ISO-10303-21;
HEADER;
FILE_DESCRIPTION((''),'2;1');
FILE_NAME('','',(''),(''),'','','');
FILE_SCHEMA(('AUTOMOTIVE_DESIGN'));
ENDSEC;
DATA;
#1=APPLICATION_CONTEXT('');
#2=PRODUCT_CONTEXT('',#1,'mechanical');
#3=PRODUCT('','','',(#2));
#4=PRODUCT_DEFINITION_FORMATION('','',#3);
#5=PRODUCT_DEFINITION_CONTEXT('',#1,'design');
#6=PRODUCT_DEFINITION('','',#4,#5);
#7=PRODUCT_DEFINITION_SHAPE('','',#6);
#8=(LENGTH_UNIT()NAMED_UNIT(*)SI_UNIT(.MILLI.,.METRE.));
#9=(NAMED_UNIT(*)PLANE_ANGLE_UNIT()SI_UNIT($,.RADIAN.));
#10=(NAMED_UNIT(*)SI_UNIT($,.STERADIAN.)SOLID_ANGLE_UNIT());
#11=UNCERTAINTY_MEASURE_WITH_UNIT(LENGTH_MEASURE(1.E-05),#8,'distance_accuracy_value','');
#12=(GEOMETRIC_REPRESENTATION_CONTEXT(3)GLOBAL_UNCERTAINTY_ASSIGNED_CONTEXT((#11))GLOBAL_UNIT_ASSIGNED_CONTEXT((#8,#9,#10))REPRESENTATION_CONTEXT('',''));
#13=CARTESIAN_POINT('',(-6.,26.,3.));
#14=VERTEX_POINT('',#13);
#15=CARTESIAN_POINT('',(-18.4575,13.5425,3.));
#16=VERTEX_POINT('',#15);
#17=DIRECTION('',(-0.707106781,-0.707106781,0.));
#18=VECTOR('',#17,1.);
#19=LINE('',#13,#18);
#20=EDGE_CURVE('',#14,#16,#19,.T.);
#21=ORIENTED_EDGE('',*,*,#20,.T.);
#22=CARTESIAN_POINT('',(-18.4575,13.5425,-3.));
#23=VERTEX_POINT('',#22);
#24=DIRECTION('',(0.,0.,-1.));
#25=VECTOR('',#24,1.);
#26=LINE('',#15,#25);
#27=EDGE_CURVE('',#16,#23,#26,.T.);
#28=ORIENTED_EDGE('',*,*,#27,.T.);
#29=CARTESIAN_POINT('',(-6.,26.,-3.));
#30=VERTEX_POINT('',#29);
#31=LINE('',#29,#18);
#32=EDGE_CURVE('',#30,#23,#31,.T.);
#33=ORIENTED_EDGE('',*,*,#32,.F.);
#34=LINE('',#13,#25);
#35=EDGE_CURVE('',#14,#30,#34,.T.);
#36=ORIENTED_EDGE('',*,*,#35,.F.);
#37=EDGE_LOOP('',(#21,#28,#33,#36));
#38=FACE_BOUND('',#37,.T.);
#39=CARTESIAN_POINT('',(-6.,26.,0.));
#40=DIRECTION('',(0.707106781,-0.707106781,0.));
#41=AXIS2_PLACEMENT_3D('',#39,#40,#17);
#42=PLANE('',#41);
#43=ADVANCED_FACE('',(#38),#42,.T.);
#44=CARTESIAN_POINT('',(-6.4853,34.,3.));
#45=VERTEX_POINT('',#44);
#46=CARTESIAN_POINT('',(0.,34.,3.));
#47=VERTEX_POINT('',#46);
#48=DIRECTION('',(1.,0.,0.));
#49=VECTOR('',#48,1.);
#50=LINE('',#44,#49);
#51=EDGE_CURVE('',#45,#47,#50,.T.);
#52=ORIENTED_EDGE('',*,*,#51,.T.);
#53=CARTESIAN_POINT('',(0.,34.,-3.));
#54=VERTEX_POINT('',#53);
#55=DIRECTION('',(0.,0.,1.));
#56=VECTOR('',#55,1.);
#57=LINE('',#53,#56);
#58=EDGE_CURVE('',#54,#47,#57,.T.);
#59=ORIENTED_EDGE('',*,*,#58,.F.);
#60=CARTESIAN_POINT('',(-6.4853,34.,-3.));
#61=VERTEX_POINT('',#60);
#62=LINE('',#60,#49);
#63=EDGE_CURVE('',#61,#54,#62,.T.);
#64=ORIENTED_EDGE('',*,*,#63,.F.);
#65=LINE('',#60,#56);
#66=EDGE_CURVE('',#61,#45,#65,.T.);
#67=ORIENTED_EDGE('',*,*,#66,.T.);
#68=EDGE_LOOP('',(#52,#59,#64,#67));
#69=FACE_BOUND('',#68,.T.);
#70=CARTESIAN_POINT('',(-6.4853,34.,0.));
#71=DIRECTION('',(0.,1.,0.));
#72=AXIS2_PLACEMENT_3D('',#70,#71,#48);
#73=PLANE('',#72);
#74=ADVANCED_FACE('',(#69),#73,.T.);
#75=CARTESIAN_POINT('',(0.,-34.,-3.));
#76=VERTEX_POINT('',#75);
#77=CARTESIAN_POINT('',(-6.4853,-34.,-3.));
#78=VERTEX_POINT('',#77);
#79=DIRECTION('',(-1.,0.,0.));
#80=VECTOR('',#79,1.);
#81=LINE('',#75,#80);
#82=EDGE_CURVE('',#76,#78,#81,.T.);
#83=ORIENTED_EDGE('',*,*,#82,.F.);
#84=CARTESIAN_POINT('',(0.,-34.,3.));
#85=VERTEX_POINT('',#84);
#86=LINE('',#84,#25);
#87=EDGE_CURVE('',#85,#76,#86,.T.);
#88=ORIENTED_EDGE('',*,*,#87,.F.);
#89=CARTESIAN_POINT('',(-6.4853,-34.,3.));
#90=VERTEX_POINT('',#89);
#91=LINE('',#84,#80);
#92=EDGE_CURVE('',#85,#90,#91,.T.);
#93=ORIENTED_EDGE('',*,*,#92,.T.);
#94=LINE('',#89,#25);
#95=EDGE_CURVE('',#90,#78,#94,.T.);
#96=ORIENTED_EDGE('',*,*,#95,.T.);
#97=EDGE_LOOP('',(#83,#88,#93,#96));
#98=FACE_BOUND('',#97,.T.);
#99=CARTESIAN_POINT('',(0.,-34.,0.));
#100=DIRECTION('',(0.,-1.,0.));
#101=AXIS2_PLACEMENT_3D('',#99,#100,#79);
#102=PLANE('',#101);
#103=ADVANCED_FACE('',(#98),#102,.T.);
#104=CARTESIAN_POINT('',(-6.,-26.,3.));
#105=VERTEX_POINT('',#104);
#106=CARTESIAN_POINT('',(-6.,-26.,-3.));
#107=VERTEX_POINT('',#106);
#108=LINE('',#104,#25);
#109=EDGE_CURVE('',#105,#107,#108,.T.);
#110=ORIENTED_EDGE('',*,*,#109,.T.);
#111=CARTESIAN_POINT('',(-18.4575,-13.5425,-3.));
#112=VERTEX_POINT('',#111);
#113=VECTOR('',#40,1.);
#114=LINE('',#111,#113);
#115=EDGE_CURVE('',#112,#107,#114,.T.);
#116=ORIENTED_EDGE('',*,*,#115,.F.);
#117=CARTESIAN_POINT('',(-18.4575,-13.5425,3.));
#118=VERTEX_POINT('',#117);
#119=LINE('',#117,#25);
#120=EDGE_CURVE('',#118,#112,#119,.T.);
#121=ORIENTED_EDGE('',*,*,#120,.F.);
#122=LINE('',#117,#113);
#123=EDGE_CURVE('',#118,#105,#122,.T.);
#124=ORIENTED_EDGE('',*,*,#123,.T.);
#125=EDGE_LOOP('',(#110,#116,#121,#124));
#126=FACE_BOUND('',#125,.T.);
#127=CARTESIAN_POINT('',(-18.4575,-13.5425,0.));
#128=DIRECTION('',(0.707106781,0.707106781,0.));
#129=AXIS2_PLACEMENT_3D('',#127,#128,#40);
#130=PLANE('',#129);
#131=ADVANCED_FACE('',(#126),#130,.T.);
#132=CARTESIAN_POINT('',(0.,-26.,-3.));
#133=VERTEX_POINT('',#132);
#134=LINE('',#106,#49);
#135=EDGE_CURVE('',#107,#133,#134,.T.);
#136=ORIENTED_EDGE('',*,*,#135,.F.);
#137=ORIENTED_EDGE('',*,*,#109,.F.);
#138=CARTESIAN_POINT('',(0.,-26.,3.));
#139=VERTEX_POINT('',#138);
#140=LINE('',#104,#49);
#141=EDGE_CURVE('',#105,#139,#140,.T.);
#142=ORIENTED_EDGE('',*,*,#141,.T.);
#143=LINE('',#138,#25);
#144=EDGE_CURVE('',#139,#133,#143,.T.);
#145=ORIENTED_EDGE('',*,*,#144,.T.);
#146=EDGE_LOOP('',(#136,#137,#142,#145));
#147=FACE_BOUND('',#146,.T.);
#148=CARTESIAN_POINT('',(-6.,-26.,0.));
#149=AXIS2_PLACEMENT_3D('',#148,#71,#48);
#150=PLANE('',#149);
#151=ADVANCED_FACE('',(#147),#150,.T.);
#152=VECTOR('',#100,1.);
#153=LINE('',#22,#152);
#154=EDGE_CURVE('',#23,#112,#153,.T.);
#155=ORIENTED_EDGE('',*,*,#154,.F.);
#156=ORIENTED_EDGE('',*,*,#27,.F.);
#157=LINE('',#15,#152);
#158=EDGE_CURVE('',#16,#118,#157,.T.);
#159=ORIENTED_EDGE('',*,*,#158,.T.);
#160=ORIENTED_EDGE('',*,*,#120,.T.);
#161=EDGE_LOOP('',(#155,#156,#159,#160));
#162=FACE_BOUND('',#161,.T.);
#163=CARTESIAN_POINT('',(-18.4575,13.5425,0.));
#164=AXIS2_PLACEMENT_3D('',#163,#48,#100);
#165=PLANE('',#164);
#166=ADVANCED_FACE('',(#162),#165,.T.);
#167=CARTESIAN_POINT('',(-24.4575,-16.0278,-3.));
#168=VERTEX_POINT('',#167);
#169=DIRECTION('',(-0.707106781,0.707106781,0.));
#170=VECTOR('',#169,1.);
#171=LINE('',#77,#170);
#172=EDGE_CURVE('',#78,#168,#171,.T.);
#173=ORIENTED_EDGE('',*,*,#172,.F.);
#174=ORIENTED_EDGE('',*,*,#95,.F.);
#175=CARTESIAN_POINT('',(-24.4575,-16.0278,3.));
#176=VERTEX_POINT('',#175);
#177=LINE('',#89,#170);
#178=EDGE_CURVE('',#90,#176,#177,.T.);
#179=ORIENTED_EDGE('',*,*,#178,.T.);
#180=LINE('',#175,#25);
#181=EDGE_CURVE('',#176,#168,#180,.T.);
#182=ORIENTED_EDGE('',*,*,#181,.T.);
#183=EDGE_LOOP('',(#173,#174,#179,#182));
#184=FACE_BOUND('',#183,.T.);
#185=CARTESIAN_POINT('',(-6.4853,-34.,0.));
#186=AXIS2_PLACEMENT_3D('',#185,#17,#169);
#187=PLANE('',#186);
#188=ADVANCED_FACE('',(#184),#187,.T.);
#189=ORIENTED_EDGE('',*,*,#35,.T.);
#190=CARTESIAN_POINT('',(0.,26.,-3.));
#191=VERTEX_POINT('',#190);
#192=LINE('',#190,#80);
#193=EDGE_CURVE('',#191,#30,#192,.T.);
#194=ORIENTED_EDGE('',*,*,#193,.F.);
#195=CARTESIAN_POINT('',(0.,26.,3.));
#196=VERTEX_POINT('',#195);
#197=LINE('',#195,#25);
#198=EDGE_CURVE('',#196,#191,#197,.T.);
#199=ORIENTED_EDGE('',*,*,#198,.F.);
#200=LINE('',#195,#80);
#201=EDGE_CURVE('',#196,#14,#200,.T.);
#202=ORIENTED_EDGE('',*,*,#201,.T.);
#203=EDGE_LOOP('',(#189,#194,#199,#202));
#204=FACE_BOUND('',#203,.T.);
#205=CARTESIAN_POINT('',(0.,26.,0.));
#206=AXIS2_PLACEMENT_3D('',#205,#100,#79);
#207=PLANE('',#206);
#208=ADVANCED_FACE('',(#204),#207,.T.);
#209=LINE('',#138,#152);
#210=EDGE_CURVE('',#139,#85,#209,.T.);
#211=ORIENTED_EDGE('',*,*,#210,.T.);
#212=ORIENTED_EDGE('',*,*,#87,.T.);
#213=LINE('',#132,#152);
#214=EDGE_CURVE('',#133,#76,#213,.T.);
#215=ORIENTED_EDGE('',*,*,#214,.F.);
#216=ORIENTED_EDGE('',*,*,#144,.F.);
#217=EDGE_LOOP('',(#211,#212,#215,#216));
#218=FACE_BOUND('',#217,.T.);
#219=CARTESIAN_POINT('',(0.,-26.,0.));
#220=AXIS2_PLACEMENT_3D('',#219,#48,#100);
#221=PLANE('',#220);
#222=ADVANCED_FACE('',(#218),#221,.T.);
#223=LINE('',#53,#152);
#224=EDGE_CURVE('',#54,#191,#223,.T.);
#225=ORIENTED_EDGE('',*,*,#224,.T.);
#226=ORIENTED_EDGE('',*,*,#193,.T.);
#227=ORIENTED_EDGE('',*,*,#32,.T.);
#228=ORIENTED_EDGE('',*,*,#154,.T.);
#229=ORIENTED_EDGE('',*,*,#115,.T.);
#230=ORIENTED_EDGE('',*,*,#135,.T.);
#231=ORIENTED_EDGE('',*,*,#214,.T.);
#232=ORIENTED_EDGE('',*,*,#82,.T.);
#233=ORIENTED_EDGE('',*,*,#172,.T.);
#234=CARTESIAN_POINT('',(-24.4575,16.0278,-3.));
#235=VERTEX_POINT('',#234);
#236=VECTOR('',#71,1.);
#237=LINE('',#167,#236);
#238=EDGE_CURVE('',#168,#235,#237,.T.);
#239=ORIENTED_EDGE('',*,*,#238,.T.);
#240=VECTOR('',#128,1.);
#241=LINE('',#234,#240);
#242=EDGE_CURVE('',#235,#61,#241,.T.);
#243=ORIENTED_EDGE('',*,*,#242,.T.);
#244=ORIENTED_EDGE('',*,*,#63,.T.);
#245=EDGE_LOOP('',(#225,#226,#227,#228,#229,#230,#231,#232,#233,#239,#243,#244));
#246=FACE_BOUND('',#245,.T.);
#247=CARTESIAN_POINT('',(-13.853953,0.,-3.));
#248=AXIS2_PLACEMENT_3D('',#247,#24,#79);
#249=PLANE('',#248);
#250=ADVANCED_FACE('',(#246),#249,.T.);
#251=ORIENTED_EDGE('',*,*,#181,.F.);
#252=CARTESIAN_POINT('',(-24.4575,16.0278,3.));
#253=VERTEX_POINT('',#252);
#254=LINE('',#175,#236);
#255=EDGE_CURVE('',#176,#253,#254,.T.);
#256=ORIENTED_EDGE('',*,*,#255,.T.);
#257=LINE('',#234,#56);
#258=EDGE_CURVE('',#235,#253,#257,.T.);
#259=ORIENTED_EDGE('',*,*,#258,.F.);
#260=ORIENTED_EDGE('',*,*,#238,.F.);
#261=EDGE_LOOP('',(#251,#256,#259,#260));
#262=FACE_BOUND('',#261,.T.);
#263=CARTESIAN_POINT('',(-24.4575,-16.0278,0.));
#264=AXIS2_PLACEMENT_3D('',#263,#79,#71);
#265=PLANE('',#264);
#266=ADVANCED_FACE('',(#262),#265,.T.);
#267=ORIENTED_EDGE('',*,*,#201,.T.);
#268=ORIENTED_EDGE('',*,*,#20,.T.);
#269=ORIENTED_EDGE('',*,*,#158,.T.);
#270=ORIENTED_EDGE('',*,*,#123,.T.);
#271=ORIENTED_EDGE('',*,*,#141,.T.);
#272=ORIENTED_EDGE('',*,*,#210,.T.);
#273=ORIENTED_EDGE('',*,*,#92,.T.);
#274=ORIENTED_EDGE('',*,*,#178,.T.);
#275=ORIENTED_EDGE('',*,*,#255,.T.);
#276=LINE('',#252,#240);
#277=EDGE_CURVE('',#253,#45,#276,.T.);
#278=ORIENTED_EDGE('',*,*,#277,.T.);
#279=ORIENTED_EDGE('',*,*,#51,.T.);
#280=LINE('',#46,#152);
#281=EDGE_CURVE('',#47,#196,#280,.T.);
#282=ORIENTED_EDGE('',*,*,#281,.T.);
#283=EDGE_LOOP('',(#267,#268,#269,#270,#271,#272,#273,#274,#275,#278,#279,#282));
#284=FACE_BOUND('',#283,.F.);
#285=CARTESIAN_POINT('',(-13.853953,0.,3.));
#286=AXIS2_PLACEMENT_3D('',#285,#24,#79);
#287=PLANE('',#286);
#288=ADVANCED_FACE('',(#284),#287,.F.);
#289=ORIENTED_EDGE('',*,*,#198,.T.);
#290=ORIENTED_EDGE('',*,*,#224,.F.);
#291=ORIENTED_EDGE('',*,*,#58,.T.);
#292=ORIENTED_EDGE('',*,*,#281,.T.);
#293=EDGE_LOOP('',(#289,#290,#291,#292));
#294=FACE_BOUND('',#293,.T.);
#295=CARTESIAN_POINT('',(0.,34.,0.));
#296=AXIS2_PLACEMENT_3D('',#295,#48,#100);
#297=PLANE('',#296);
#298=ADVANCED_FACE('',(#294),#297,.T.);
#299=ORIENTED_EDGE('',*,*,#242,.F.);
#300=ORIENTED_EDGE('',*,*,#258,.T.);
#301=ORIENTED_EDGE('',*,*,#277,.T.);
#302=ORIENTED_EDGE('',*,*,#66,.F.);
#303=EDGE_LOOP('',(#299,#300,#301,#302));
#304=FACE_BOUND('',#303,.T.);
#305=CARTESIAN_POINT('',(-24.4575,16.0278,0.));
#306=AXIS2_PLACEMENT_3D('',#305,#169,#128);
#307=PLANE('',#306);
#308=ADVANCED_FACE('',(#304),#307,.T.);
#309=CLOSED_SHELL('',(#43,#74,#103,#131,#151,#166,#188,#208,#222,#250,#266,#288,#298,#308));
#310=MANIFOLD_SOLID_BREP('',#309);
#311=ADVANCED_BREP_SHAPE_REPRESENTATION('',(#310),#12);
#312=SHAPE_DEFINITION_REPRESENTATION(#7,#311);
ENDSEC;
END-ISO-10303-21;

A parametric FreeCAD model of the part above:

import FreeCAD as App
import Part
import Sketcher
from FreeCAD import Vector

doc = App.newDocument("Part")
params = doc.addObject("Spreadsheet::Sheet", "Params")
for row, (alias, value) in enumerate([
    ("sketch1_width", "6 mm"),
    ("sketch1_height", "8 mm"),
    ("pad1_length", "6 mm"),
], start=1):
    params.set(f"A{row}", alias)
    params.set(f"B{row}", "=" + value)
    params.setAlias(f"B{row}", alias)

body = doc.addObject("PartDesign::Body", "Body")

# Sketch on XY plane
sketch1 = body.newObject("Sketcher::SketchObject", "Sketch")
sketch1.AttachmentSupport = (doc.getObject("XY_Plane"), [""])
sketch1.MapMode = "FlatFace"
sketch1.addGeometry(Part.LineSegment(Vector(0, 26, 0), Vector(0, 34, 0)), False)
sketch1.addGeometry(Part.LineSegment(Vector(0, 34, 0), Vector(-6.4853, 34, 0)), False)
sketch1.addGeometry(Part.LineSegment(Vector(-6.4853, 34, 0), Vector(-24.4575, 16.0278, 0)), False)
sketch1.addGeometry(Part.LineSegment(Vector(-24.4575, 16.0278, 0), Vector(-24.4575, -16.0278, 0)), False)
sketch1.addGeometry(Part.LineSegment(Vector(-24.4575, -16.0278, 0), Vector(-6.4853, -34, 0)), False)
sketch1.addGeometry(Part.LineSegment(Vector(-6.4853, -34, 0), Vector(0, -34, 0)), False)
sketch1.addGeometry(Part.LineSegment(Vector(0, -34, 0), Vector(0, -26, 0)), False)
sketch1.addGeometry(Part.LineSegment(Vector(0, -26, 0), Vector(-6, -26, 0)), False)
sketch1.addGeometry(Part.LineSegment(Vector(-6, -26, 0), Vector(-18.4575, -13.5425, 0)), False)
sketch1.addGeometry(Part.LineSegment(Vector(-18.4575, -13.5425, 0), Vector(-18.4575, 13.5425, 0)), False)
sketch1.addGeometry(Part.LineSegment(Vector(-18.4575, 13.5425, 0), Vector(-6, 26, 0)), False)
sketch1.addGeometry(Part.LineSegment(Vector(-6, 26, 0), Vector(0, 26, 0)), False)
sketch1.addConstraint(Sketcher.Constraint("Coincident", 0, 2, 1, 1))
sketch1.addConstraint(Sketcher.Constraint("Coincident", 1, 2, 2, 1))
sketch1.addConstraint(Sketcher.Constraint("Coincident", 2, 2, 3, 1))
sketch1.addConstraint(Sketcher.Constraint("Coincident", 3, 2, 4, 1))
sketch1.addConstraint(Sketcher.Constraint("Coincident", 4, 2, 5, 1))
sketch1.addConstraint(Sketcher.Constraint("Coincident", 5, 2, 6, 1))
sketch1.addConstraint(Sketcher.Constraint("Coincident", 6, 2, 7, 1))
sketch1.addConstraint(Sketcher.Constraint("Coincident", 7, 2, 8, 1))
sketch1.addConstraint(Sketcher.Constraint("Coincident", 8, 2, 9, 1))
sketch1.addConstraint(Sketcher.Constraint("Coincident", 9, 2, 10, 1))
sketch1.addConstraint(Sketcher.Constraint("Coincident", 10, 2, 11, 1))
sketch1.addConstraint(Sketcher.Constraint("Coincident", 11, 2, 0, 1))
sketch1.addConstraint(Sketcher.Constraint("Vertical", 0))
sketch1.addConstraint(Sketcher.Constraint("Horizontal", 1))
sketch1.addConstraint(Sketcher.Constraint("Vertical", 3))
sketch1.addConstraint(Sketcher.Constraint("Horizontal", 5))
sketch1.addConstraint(Sketcher.Constraint("Vertical", 6))
sketch1.addConstraint(Sketcher.Constraint("Horizontal", 7))
sketch1.addConstraint(Sketcher.Constraint("Vertical", 9))
sketch1.addConstraint(Sketcher.Constraint("Horizontal", 11))
sketch1.addConstraint(Sketcher.Constraint("Symmetric", 0, 2, 5, 2, -1, 1))
sketch1.addConstraint(Sketcher.Constraint("Symmetric", 7, 2, 10, 2, -1))
sketch1.addConstraint(Sketcher.Constraint("PointOnObject", 0, 2, -2))
sketch1.addConstraint(Sketcher.Constraint("Perpendicular", 2, 4))
sketch1.addConstraint(Sketcher.Constraint("Parallel", 4, 8))
sketch1.addConstraint(Sketcher.Constraint("Perpendicular", 8, 10))
sketch1.addConstraint(Sketcher.Constraint("Vertical", 1, 2, 4, 2))
sketch1.addConstraint(Sketcher.Constraint("Equal", 2, 4))
sketch1.addConstraint(Sketcher.Constraint("DistanceX", 7, 2, 7, 1, 6.0))
sketch1.addConstraint(Sketcher.Constraint("DistanceY", 0, 1, 0, 2, 8.0))
sketch1.addConstraint(Sketcher.Constraint("DistanceY", -1, 1, 0, 2, 34.0))
sketch1.addConstraint(Sketcher.Constraint("DistanceX", 3, 2, 8, 2, 6.0))
sketch1.addConstraint(Sketcher.Constraint("DistanceX", 2, 2, -1, 1, 24.4575))
sketch1.addConstraint(Sketcher.Constraint("DistanceX", 1, 2, 1, 1, 6.4853))
sketch1.setExpression("Constraints[28]", "Params.sketch1_width")
sketch1.setExpression("Constraints[29]", "Params.sketch1_height")
pad1 = body.newObject("PartDesign::Pad", "Pad")
pad1.Profile = sketch1
pad1.setExpression("Length", "Params.pad1_length")
pad1.Midplane = True

doc.recompute()
